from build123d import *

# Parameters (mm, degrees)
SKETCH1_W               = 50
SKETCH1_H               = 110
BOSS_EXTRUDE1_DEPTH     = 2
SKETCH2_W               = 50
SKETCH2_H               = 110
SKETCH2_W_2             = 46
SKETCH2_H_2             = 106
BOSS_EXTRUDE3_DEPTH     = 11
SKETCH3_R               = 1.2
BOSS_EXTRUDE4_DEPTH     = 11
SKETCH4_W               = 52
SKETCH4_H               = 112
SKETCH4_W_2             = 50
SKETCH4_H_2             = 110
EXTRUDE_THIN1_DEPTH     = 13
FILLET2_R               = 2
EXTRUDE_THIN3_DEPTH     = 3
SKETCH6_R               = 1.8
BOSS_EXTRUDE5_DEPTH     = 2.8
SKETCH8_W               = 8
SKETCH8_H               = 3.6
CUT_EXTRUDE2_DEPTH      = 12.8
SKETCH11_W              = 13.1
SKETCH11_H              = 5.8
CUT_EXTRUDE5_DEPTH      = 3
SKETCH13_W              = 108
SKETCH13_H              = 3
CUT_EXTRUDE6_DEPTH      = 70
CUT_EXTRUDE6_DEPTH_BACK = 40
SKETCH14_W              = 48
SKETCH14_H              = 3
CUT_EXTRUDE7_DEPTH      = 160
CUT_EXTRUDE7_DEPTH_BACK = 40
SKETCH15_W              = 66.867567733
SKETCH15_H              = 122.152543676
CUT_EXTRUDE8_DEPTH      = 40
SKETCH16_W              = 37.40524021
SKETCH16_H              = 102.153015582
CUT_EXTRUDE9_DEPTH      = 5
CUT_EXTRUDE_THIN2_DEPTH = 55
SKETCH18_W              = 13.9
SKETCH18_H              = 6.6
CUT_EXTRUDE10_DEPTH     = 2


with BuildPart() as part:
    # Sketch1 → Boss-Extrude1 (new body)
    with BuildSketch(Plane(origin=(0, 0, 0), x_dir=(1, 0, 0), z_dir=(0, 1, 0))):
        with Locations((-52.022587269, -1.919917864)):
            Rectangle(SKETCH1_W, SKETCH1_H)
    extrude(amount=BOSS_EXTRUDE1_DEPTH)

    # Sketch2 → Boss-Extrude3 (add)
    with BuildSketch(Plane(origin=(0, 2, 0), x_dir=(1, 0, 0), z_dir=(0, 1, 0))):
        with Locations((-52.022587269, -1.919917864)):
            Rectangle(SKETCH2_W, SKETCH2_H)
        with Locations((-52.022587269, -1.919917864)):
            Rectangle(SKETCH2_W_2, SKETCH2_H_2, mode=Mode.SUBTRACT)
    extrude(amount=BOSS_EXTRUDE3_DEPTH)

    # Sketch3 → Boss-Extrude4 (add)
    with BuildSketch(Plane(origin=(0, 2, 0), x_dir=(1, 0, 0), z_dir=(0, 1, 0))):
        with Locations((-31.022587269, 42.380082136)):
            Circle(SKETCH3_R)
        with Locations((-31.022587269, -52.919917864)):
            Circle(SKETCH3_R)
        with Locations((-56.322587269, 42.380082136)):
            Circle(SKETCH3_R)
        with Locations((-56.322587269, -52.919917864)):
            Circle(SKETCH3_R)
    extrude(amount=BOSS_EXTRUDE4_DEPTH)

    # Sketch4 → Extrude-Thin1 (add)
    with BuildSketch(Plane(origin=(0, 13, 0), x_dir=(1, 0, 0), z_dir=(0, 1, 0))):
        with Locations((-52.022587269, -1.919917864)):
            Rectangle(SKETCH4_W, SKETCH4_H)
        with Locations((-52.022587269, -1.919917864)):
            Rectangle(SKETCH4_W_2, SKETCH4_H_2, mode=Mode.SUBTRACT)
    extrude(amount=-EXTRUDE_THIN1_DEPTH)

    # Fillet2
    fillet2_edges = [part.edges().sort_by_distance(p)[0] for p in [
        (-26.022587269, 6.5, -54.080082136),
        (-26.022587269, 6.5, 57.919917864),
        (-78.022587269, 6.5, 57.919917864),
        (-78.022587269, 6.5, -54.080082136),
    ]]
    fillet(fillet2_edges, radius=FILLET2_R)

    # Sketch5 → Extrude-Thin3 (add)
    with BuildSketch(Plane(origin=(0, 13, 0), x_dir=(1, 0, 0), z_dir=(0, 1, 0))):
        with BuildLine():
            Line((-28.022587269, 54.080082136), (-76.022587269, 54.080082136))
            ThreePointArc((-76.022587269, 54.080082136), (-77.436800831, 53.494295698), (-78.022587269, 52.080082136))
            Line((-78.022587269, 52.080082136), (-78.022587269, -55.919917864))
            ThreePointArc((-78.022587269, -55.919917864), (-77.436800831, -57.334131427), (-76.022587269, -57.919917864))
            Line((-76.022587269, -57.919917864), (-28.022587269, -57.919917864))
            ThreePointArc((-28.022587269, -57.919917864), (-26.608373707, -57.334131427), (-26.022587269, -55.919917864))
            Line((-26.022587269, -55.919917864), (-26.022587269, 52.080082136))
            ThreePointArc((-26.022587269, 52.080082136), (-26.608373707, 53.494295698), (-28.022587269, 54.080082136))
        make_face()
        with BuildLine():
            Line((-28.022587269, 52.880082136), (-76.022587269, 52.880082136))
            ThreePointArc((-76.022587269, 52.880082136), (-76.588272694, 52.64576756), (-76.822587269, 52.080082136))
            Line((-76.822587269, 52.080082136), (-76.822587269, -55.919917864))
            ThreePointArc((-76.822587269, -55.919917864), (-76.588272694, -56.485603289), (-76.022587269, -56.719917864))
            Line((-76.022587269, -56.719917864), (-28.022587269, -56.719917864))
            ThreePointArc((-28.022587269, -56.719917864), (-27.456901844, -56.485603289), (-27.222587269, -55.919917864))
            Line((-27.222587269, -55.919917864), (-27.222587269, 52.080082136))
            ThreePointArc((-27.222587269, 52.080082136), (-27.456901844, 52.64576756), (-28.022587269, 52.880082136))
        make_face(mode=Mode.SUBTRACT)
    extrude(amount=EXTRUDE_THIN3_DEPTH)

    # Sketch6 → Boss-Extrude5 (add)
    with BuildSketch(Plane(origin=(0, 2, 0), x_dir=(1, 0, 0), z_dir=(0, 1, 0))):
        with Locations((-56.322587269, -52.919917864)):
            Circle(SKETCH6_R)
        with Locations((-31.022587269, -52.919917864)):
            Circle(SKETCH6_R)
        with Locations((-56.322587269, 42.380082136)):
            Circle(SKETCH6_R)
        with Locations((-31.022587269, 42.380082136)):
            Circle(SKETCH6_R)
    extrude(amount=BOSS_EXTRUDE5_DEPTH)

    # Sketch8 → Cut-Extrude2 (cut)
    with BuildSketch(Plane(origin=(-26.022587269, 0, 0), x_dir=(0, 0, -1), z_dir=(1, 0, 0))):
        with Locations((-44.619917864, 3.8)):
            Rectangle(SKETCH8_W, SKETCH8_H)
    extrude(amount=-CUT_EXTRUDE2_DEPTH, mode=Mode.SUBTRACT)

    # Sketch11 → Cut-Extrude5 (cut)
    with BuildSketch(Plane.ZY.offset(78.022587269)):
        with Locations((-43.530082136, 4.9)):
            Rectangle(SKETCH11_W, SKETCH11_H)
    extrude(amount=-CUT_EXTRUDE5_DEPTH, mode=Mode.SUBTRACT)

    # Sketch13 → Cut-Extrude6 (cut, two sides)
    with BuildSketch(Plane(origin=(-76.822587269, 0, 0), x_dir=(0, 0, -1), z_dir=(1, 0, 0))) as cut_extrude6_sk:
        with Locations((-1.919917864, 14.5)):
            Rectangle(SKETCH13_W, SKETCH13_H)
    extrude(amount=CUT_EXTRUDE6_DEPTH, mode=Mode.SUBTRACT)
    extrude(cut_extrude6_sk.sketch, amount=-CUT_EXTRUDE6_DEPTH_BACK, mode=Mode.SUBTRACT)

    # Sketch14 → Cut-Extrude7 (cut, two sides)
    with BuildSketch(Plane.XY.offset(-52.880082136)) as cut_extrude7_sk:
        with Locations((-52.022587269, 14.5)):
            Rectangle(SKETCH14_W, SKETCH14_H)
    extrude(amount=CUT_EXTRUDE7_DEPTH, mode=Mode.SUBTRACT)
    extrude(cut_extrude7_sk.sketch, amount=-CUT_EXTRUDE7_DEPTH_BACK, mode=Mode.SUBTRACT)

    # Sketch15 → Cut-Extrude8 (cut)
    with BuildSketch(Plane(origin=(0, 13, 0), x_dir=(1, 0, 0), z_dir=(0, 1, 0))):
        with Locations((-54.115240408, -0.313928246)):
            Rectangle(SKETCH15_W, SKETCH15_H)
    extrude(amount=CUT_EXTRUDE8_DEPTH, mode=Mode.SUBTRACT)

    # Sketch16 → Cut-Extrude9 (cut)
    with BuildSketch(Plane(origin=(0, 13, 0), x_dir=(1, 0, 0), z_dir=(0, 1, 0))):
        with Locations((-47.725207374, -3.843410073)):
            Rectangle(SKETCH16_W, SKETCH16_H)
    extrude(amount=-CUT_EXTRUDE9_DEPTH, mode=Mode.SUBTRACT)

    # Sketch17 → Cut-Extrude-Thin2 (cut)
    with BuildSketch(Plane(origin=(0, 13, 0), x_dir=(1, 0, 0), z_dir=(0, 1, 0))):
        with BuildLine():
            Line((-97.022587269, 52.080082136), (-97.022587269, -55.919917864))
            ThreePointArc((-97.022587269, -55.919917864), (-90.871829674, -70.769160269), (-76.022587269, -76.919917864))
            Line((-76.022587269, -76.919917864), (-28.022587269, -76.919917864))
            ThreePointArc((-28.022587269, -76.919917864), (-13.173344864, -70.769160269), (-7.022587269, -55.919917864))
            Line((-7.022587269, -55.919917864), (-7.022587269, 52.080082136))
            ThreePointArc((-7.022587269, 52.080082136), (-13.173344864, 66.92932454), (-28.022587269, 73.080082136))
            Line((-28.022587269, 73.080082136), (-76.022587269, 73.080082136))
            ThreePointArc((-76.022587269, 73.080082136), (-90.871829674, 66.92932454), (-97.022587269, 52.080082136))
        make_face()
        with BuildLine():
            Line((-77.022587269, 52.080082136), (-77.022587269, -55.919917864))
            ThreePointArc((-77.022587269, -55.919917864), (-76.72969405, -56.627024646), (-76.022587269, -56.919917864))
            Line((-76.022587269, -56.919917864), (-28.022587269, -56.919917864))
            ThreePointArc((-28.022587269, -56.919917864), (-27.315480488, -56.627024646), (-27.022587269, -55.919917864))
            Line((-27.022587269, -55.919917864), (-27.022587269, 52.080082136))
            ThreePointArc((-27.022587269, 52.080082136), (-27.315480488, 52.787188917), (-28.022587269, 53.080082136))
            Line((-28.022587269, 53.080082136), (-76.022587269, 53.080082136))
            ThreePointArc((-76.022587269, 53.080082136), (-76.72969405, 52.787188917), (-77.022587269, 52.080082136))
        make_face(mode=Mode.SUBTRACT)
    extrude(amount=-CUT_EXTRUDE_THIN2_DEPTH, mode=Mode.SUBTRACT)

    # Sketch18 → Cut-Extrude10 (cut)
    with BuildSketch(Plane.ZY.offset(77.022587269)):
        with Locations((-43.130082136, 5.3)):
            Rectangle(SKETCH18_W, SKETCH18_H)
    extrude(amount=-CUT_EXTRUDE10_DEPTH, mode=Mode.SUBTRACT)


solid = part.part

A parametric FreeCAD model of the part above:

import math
import FreeCAD as App
import Part
import Sketcher
Q = App.Units.Quantity


def edges_at(feature, points):
    """Names of the edges that pass closest to the given points."""
    edges = feature.Shape.Edges
    near = lambda p: min(range(len(edges)), key=lambda i: edges[i].distToShape(Part.Vertex(*p))[0])
    return sorted({f"Edge{near(p) + 1}" for p in points})

doc = App.newDocument("Part")
body = doc.addObject("PartDesign::Body", "Body")

sketch1 = body.newObject("Sketcher::SketchObject", "Sketch")
sketch1.AttachmentSupport = (doc.getObject("XZ_Plane"), [""])
sketch1.MapMode = "FlatFace"
sketch1.addGeometry([
    Part.LineSegment(App.Vector(-77.022587, -53.080082, 0), App.Vector(-77.022587, 56.919918, 0)),
    Part.LineSegment(App.Vector(-77.022587, 56.919918, 0), App.Vector(-27.022587, 56.919918, 0)),
    Part.LineSegment(App.Vector(-27.022587, 56.919918, 0), App.Vector(-27.022587, -53.080082, 0)),
    Part.LineSegment(App.Vector(-27.022587, -53.080082, 0), App.Vector(-77.022587, -53.080082, 0)),
], False)
sketch1.addConstraint([
    Sketcher.Constraint("Coincident", 0, 2, 1, 1),
    Sketcher.Constraint("Coincident", 1, 2, 2, 1),
    Sketcher.Constraint("Coincident", 2, 2, 3, 1),
    Sketcher.Constraint("Coincident", 3, 2, 0, 1),
    Sketcher.Constraint("Vertical", 0),
    Sketcher.Constraint("Horizontal", 1),
    Sketcher.Constraint("Vertical", 2),
    Sketcher.Constraint("Horizontal", 3),
    Sketcher.Constraint("DistanceX", 1, 1, 1, 2, Q("50 mm")),
    Sketcher.Constraint("DistanceY", 0, 1, 0, 2, Q("110 mm")),
    Sketcher.Constraint("DistanceX", 0, 2, -1, 1, Q("77.022587 mm")),
    Sketcher.Constraint("DistanceY", -1, 1, 0, 2, Q("56.919918 mm")),
])
pad1 = body.newObject("PartDesign::Pad", "Pad")
pad1.Profile = sketch1
pad1.Length = 2
pad1.Reversed = True

sketch2 = body.newObject("Sketcher::SketchObject", "Sketch001")
sketch2.AttachmentSupport = (doc.getObject("XZ_Plane"), [""])
sketch2.MapMode = "FlatFace"
sketch2.AttachmentOffset = App.Placement(App.Vector(0, 0, -2), App.Rotation())
sketch2.addGeometry([
    Part.LineSegment(App.Vector(-77.022587, -53.080082, 0), App.Vector(-77.022587, 56.919918, 0)),
    Part.LineSegment(App.Vector(-77.022587, 56.919918, 0), App.Vector(-27.022587, 56.919918, 0)),
    Part.LineSegment(App.Vector(-27.022587, 56.919918, 0), App.Vector(-27.022587, -53.080082, 0)),
    Part.LineSegment(App.Vector(-27.022587, -53.080082, 0), App.Vector(-77.022587, -53.080082, 0)),
    Part.LineSegment(App.Vector(-29.022587, 54.919918, 0), App.Vector(-75.022587, 54.919918, 0)),
    Part.LineSegment(App.Vector(-75.022587, 54.919918, 0), App.Vector(-75.022587, -51.080082, 0)),
    Part.LineSegment(App.Vector(-75.022587, -51.080082, 0), App.Vector(-29.022587, -51.080082, 0)),
    Part.LineSegment(App.Vector(-29.022587, -51.080082, 0), App.Vector(-29.022587, 54.919918, 0)),
], False)
sketch2.addConstraint([
    Sketcher.Constraint("Coincident", 0, 2, 1, 1),
    Sketcher.Constraint("Coincident", 1, 2, 2, 1),
    Sketcher.Constraint("Coincident", 2, 2, 3, 1),
    Sketcher.Constraint("Coincident", 3, 2, 0, 1),
    Sketcher.Constraint("Coincident", 4, 2, 5, 1),
    Sketcher.Constraint("Coincident", 5, 2, 6, 1),
    Sketcher.Constraint("Coincident", 6, 2, 7, 1),
    Sketcher.Constraint("Coincident", 7, 2, 4, 1),
    Sketcher.Constraint("Vertical", 0),
    Sketcher.Constraint("Horizontal", 1),
    Sketcher.Constraint("Vertical", 2),
    Sketcher.Constraint("Horizontal", 3),
    Sketcher.Constraint("Horizontal", 4),
    Sketcher.Constraint("Vertical", 5),
    Sketcher.Constraint("Horizontal", 6),
    Sketcher.Constraint("Vertical", 7),
    Sketcher.Constraint("DistanceX", 1, 1, 1, 2, Q("50 mm")),
    Sketcher.Constraint("DistanceX", 4, 2, 4, 1, Q("46 mm")),
    Sketcher.Constraint("DistanceY", 0, 1, 0, 2, Q("110 mm")),
    Sketcher.Constraint("DistanceY", 5, 2, 5, 1, Q("106 mm")),
    Sketcher.Constraint("DistanceX", 0, 2, 4, 2, Q("2 mm")),
    Sketcher.Constraint("DistanceY", 4, 2, 0, 2, Q("2 mm")),
    Sketcher.Constraint("DistanceX", 0, 2, -1, 1, Q("77.022587 mm")),
    Sketcher.Constraint("DistanceY", -1, 1, 0, 2, Q("56.919918 mm")),
])
pad2 = body.newObject("PartDesign::Pad", "Pad001")
pad2.Profile = sketch2
pad2.Length = 11
pad2.Reversed = True

sketch3 = body.newObject("Sketcher::SketchObject", "Sketch002")
sketch3.AttachmentSupport = (doc.getObject("XZ_Plane"), [""])
sketch3.MapMode = "FlatFace"
sketch3.AttachmentOffset = App.Placement(App.Vector(0, 0, -2), App.Rotation())
sketch3.addGeometry([
    Part.Circle(App.Vector(-31.022587, -42.380082, 0), App.Vector(0, 0, 1), 1.2),
    Part.Circle(App.Vector(-31.022587, 52.919918, 0), App.Vector(0, 0, 1), 1.2),
    Part.Circle(App.Vector(-56.322587, -42.380082, 0), App.Vector(0, 0, 1), 1.2),
    Part.Circle(App.Vector(-56.322587, 52.919918, 0), App.Vector(0, 0, 1), 1.2),
], False)
sketch3.addConstraint([
    Sketcher.Constraint("Equal", 0, 1),
    Sketcher.Constraint("Equal", 1, 2),
    Sketcher.Constraint("Equal", 2, 3),
    Sketcher.Constraint("Horizontal", 0, 3, 2, 3),
    Sketcher.Constraint("Horizontal", 1, 3, 3, 3),
    Sketcher.Constraint("Vertical", 0, 3, 1, 3),
    Sketcher.Constraint("Vertical", 2, 3, 3, 3),
    Sketcher.Constraint("Diameter", 0, Q("2.4 mm")),
    Sketcher.Constraint("DistanceY", 0, 3, 1, 3, Q("95.3 mm")),
    Sketcher.Constraint("DistanceX", 2, 3, 0, 3, Q("25.3 mm")),
    Sketcher.Constraint("DistanceX", 0, 3, -1, 1, Q("31.022587 mm")),
    Sketcher.Constraint("DistanceY", 0, 3, -1, 1, Q("42.380082 mm")),
])
pad3 = body.newObject("PartDesign::Pad", "Pad002")
pad3.Profile = sketch3
pad3.Length = 11
pad3.Reversed = True

sketch4 = body.newObject("Sketcher::SketchObject", "Sketch003")
sketch4.AttachmentSupport = (doc.getObject("XZ_Plane"), [""])
sketch4.MapMode = "FlatFace"
sketch4.AttachmentOffset = App.Placement(App.Vector(0, 0, -13), App.Rotation())
sketch4.addGeometry([
    Part.LineSegment(App.Vector(-78.022587, -54.080082, 0), App.Vector(-78.022587, 57.919918, 0)),
    Part.LineSegment(App.Vector(-78.022587, 57.919918, 0), App.Vector(-26.022587, 57.919918, 0)),
    Part.LineSegment(App.Vector(-26.022587, 57.919918, 0), App.Vector(-26.022587, -54.080082, 0)),
    Part.LineSegment(App.Vector(-26.022587, -54.080082, 0), App.Vector(-78.022587, -54.080082, 0)),
    Part.LineSegment(App.Vector(-27.022587, 56.919918, 0), App.Vector(-77.022587, 56.919918, 0)),
    Part.LineSegment(App.Vector(-77.022587, 56.919918, 0), App.Vector(-77.022587, -53.080082, 0)),
    Part.LineSegment(App.Vector(-77.022587, -53.080082, 0), App.Vector(-27.022587, -53.080082, 0)),
    Part.LineSegment(App.Vector(-27.022587, -53.080082, 0), App.Vector(-27.022587, 56.919918, 0)),
], False)
sketch4.addConstraint([
    Sketcher.Constraint("Coincident", 0, 2, 1, 1),
    Sketcher.Constraint("Coincident", 1, 2, 2, 1),
    Sketcher.Constraint("Coincident", 2, 2, 3, 1),
    Sketcher.Constraint("Coincident", 3, 2, 0, 1),
    Sketcher.Constraint("Coincident", 4, 2, 5, 1),
    Sketcher.Constraint("Coincident", 5, 2, 6, 1),
    Sketcher.Constraint("Coincident", 6, 2, 7, 1),
    Sketcher.Constraint("Coincident", 7, 2, 4, 1),
    Sketcher.Constraint("Vertical", 0),
    Sketcher.Constraint("Horizontal", 1),
    Sketcher.Constraint("Vertical", 2),
    Sketcher.Constraint("Horizontal", 3),
    Sketcher.Constraint("Horizontal", 4),
    Sketcher.Constraint("Vertical", 5),
    Sketcher.Constraint("Horizontal", 6),
    Sketcher.Constraint("Vertical", 7),
    Sketcher.Constraint("DistanceX", 1, 1, 1, 2, Q("52 mm")),
    Sketcher.Constraint("DistanceX", 4, 2, 4, 1, Q("50 mm")),
    Sketcher.Constraint("DistanceY", 0, 1, 0, 2, Q("112 mm")),
    Sketcher.Constraint("DistanceY", 5, 2, 5, 1, Q("110 mm")),
    Sketcher.Constraint("DistanceX", 0, 2, 4, 2, Q("1 mm")),
    Sketcher.Constraint("DistanceY", 4, 2, 0, 2, Q("1 mm")),
    Sketcher.Constraint("DistanceX", 0, 2, -1, 1, Q("78.022587 mm")),
    Sketcher.Constraint("DistanceY", -1, 1, 0, 2, Q("57.919918 mm")),
])
pad4 = body.newObject("PartDesign::Pad", "Pad003")
pad4.Profile = sketch4
pad4.Length = 13
doc.recompute()

fillet = body.newObject("PartDesign::Fillet", "Fillet")
fillet.Base = (pad4, edges_at(pad4, [
    (-26.023, 6.5, -54.08),
    (-26.023, 6.5, 57.92),
    (-78.023, 6.5, 57.92),
    (-78.023, 6.5, -54.08),
]))
fillet.Radius = 2

sketch5 = body.newObject("Sketcher::SketchObject", "Sketch004")
sketch5.AttachmentSupport = (doc.getObject("XZ_Plane"), [""])
sketch5.MapMode = "FlatFace"
sketch5.AttachmentOffset = App.Placement(App.Vector(0, 0, -13), App.Rotation())
sketch5.addGeometry([
    Part.LineSegment(App.Vector(-28.022587, -54.080082, 0), App.Vector(-76.022587, -54.080082, 0)),
    Part.ArcOfCircle(Part.Circle(App.Vector(-76.022587, -52.080082, 0), App.Vector(0, 0, 1), 2), math.radians(-180), math.radians(-90)),
    Part.LineSegment(App.Vector(-78.022587, -52.080082, 0), App.Vector(-78.022587, 55.919918, 0)),
    Part.ArcOfCircle(Part.Circle(App.Vector(-76.022587, 55.919918, 0), App.Vector(0, 0, 1), 2), math.radians(90), math.radians(180)),
    Part.LineSegment(App.Vector(-76.022587, 57.919918, 0), App.Vector(-28.022587, 57.919918, 0)),
    Part.ArcOfCircle(Part.Circle(App.Vector(-28.022587, 55.919918, 0), App.Vector(0, 0, 1), 2), math.radians(0), math.radians(90)),
    Part.LineSegment(App.Vector(-26.022587, 55.919918, 0), App.Vector(-26.022587, -52.080082, 0)),
    Part.ArcOfCircle(Part.Circle(App.Vector(-28.022587, -52.080082, 0), App.Vector(0, 0, 1), 2), math.radians(-90), math.radians(0)),
    Part.LineSegment(App.Vector(-76.022587, -52.880082, 0), App.Vector(-28.022587, -52.880082, 0)),
    Part.ArcOfCircle(Part.Circle(App.Vector(-28.022587, -52.080082, 0), App.Vector(0, 0, 1), 0.8), math.radians(-90), math.radians(0)),
    Part.LineSegment(App.Vector(-27.222587, -52.080082, 0), App.Vector(-27.222587, 55.919918, 0)),
    Part.ArcOfCircle(Part.Circle(App.Vector(-28.022587, 55.919918, 0), App.Vector(0, 0, 1), 0.8), math.radians(0), math.radians(90)),
    Part.LineSegment(App.Vector(-28.022587, 56.719918, 0), App.Vector(-76.022587, 56.719918, 0)),
    Part.ArcOfCircle(Part.Circle(App.Vector(-76.022587, 55.919918, 0), App.Vector(0, 0, 1), 0.8), math.radians(90), math.radians(180)),
    Part.LineSegment(App.Vector(-76.822587, 55.919918, 0), App.Vector(-76.822587, -52.080082, 0)),
    Part.ArcOfCircle(Part.Circle(App.Vector(-76.022587, -52.080082, 0), App.Vector(0, 0, 1), 0.8), math.radians(-180), math.radians(-90)),
], False)
sketch5.addConstraint([
    Sketcher.Constraint("Tangent", 0, 2, 1, 2),
    Sketcher.Constraint("Tangent", 1, 1, 2, 1),
    Sketcher.Constraint("Tangent", 2, 2, 3, 2),
    Sketcher.Constraint("Tangent", 3, 1, 4, 1),
    Sketcher.Constraint("Tangent", 4, 2, 5, 2),
    Sketcher.Constraint("Tangent", 5, 1, 6, 1),
    Sketcher.Constraint("Tangent", 6, 2, 7, 2),
    Sketcher.Constraint("Tangent", 7, 1, 0, 1),
    Sketcher.Constraint("Tangent", 8, 2, 9, 1),
    Sketcher.Constraint("Tangent", 9, 2, 10, 1),
    Sketcher.Constraint("Tangent", 10, 2, 11, 1),
    Sketcher.Constraint("Tangent", 11, 2, 12, 1),
    Sketcher.Constraint("Tangent", 12, 2, 13, 1),
    Sketcher.Constraint("Tangent", 13, 2, 14, 1),
    Sketcher.Constraint("Tangent", 14, 2, 15, 1),
    Sketcher.Constraint("Tangent", 15, 2, 8, 1),
    Sketcher.Constraint("Horizontal", 0),
    Sketcher.Constraint("Vertical", 2),
    Sketcher.Constraint("Horizontal", 4),
    Sketcher.Constraint("Vertical", 6),
    Sketcher.Constraint("Horizontal", 8),
    Sketcher.Constraint("Vertical", 10),
    Sketcher.Constraint("Horizontal", 12),
    Sketcher.Constraint("Vertical", 14),
    Sketcher.Constraint("Coincident", 9, 3, 7, 3),
    Sketcher.Constraint("Coincident", 11, 3, 5, 3),
    Sketcher.Constraint("Coincident", 13, 3, 3, 3),
    Sketcher.Constraint("Equal", 1, 3),
    Sketcher.Constraint("Equal", 3, 5),
    Sketcher.Constraint("Equal", 5, 7),
    Sketcher.Constraint("Equal", 13, 15),
    Sketcher.Constraint("Radius", 1, Q("2 mm")),
    Sketcher.Constraint("Radius", 9, Q("0.8 mm")),
    Sketcher.Constraint("DistanceX", 0, 2, 0, 1, Q("48 mm")),
    Sketcher.Constraint("DistanceY", 2, 1, 2, 2, Q("108 mm")),
    Sketcher.Constraint("DistanceX", 1, 3, -1, 1, Q("76.022587 mm")),
    Sketcher.Constraint("DistanceY", 1, 3, -1, 1, Q("52.080082 mm")),
])
pad5 = body.newObject("PartDesign::Pad", "Pad004")
pad5.Profile = sketch5
pad5.Length = 3
pad5.Reversed = True

sketch6 = body.newObject("Sketcher::SketchObject", "Sketch005")
sketch6.AttachmentSupport = (doc.getObject("XZ_Plane"), [""])
sketch6.MapMode = "FlatFace"
sketch6.AttachmentOffset = App.Placement(App.Vector(0, 0, -2), App.Rotation())
sketch6.addGeometry([
    Part.Circle(App.Vector(-56.322587, 52.919918, 0), App.Vector(0, 0, 1), 1.8),
    Part.Circle(App.Vector(-31.022587, 52.919918, 0), App.Vector(0, 0, 1), 1.8),
    Part.Circle(App.Vector(-56.322587, -42.380082, 0), App.Vector(0, 0, 1), 1.8),
    Part.Circle(App.Vector(-31.022587, -42.380082, 0), App.Vector(0, 0, 1), 1.8),
], False)
sketch6.addConstraint([
    Sketcher.Constraint("Equal", 0, 1),
    Sketcher.Constraint("Equal", 1, 2),
    Sketcher.Constraint("Equal", 2, 3),
    Sketcher.Constraint("Horizontal", 0, 3, 1, 3),
    Sketcher.Constraint("Horizontal", 2, 3, 3, 3),
    Sketcher.Constraint("Vertical", 0, 3, 2, 3),
    Sketcher.Constraint("Vertical", 1, 3, 3, 3),
    Sketcher.Constraint("Diameter", 0, Q("3.6 mm")),
    Sketcher.Constraint("DistanceX", 0, 3, 1, 3, Q("25.3 mm")),
    Sketcher.Constraint("DistanceY", 2, 3, 0, 3, Q("95.3 mm")),
    Sketcher.Constraint("DistanceX", 0, 3, -1, 1, Q("56.322587 mm")),
    Sketcher.Constraint("DistanceY", -1, 1, 0, 3, Q("52.919918 mm")),
])
pad6 = body.newObject("PartDesign::Pad", "Pad005")
pad6.Profile = sketch6
pad6.Length = 2.8
pad6.Reversed = True

sketch7 = body.newObject("Sketcher::SketchObject", "Sketch006")
sketch7.AttachmentSupport = (doc.getObject("YZ_Plane"), [""])
sketch7.MapMode = "FlatFace"
sketch7.AttachmentOffset = App.Placement(App.Vector(0, 0, -26.022587), App.Rotation())
sketch7.addGeometry([
    Part.LineSegment(App.Vector(5.6, 48.619918, 0), App.Vector(2, 48.619918, 0)),
    Part.LineSegment(App.Vector(2, 48.619918, 0), App.Vector(2, 40.619918, 0)),
    Part.LineSegment(App.Vector(2, 40.619918, 0), App.Vector(5.6, 40.619918, 0)),
    Part.LineSegment(App.Vector(5.6, 40.619918, 0), App.Vector(5.6, 48.619918, 0)),
], False)
sketch7.addConstraint([
    Sketcher.Constraint("Coincident", 0, 2, 1, 1),
    Sketcher.Constraint("Coincident", 1, 2, 2, 1),
    Sketcher.Constraint("Coincident", 2, 2, 3, 1),
    Sketcher.Constraint("Coincident", 3, 2, 0, 1),
    Sketcher.Constraint("Horizontal", 0),
    Sketcher.Constraint("Vertical", 1),
    Sketcher.Constraint("Horizontal", 2),
    Sketcher.Constraint("Vertical", 3),
    Sketcher.Constraint("DistanceY", 1, 2, 1, 1, Q("8 mm")),
    Sketcher.Constraint("DistanceX", 0, 2, 0, 1, Q("3.6 mm")),
    Sketcher.Constraint("DistanceX", -1, 1, 0, 2, Q("2 mm")),
    Sketcher.Constraint("DistanceY", -1, 1, 0, 2, Q("48.619918 mm")),
])
pocket1 = body.newObject("PartDesign::Pocket", "Pocket")
pocket1.Profile = sketch7
pocket1.Length = 12.8

sketch8 = body.newObject("Sketcher::SketchObject", "Sketch007")
sketch8.AttachmentSupport = (doc.getObject("YZ_Plane"), [""])
sketch8.MapMode = "FlatFace"
sketch8.AttachmentOffset = App.Placement(App.Vector(0, 0, -78.022587), App.Rotation())
sketch8.addGeometry([
    Part.LineSegment(App.Vector(7.8, -50.080082, 0), App.Vector(2, -50.080082, 0)),
    Part.LineSegment(App.Vector(2, -50.080082, 0), App.Vector(2, -36.980082, 0)),
    Part.LineSegment(App.Vector(2, -36.980082, 0), App.Vector(7.8, -36.980082, 0)),
    Part.LineSegment(App.Vector(7.8, -36.980082, 0), App.Vector(7.8, -50.080082, 0)),
], False)
sketch8.addConstraint([
    Sketcher.Constraint("Coincident", 0, 2, 1, 1),
    Sketcher.Constraint("Coincident", 1, 2, 2, 1),
    Sketcher.Constraint("Coincident", 2, 2, 3, 1),
    Sketcher.Constraint("Coincident", 3, 2, 0, 1),
    Sketcher.Constraint("Horizontal", 0),
    Sketcher.Constraint("Vertical", 1),
    Sketcher.Constraint("Horizontal", 2),
    Sketcher.Constraint("Vertical", 3),
    Sketcher.Constraint("DistanceX", 0, 2, 0, 1, Q("5.8 mm")),
    Sketcher.Constraint("DistanceY", 1, 1, 1, 2, Q("13.1 mm")),
    Sketcher.Constraint("DistanceX", -1, 1, 0, 2, Q("2 mm")),
    Sketcher.Constraint("DistanceY", 0, 2, -1, 1, Q("50.080082 mm")),
])
pocket2 = body.newObject("PartDesign::Pocket", "Pocket001")
pocket2.Profile = sketch8
pocket2.Length = 3
pocket2.Reversed = True

sketch9 = body.newObject("Sketcher::SketchObject", "Sketch008")
sketch9.AttachmentSupport = (doc.getObject("YZ_Plane"), [""])
sketch9.MapMode = "FlatFace"
sketch9.AttachmentOffset = App.Placement(App.Vector(0, 0, -76.822587), App.Rotation())
sketch9.addGeometry([
    Part.LineSegment(App.Vector(16, 55.919918, 0), App.Vector(13, 55.919918, 0)),
    Part.LineSegment(App.Vector(13, 55.919918, 0), App.Vector(13, -52.080082, 0)),
    Part.LineSegment(App.Vector(13, -52.080082, 0), App.Vector(16, -52.080082, 0)),
    Part.LineSegment(App.Vector(16, -52.080082, 0), App.Vector(16, 55.919918, 0)),
], False)
sketch9.addConstraint([
    Sketcher.Constraint("Coincident", 0, 2, 1, 1),
    Sketcher.Constraint("Coincident", 1, 2, 2, 1),
    Sketcher.Constraint("Coincident", 2, 2, 3, 1),
    Sketcher.Constraint("Coincident", 3, 2, 0, 1),
    Sketcher.Constraint("Horizontal", 0),
    Sketcher.Constraint("Vertical", 1),
    Sketcher.Constraint("Horizontal", 2),
    Sketcher.Constraint("Vertical", 3),
    Sketcher.Constraint("DistanceX", 0, 2, 0, 1, Q("3 mm")),
    Sketcher.Constraint("DistanceY", 1, 2, 1, 1, Q("108 mm")),
    Sketcher.Constraint("DistanceX", -1, 1, 0, 2, Q("13 mm")),
    Sketcher.Constraint("DistanceY", -1, 1, 0, 2, Q("55.919918 mm")),
])
pocket3 = body.newObject("PartDesign::Pocket", "Pocket002")
pocket3.Profile = sketch9
pocket3.Type = "ThroughAll"
pocket3.Midplane = True

sketch10 = body.newObject("Sketcher::SketchObject", "Sketch009")
sketch10.AttachmentSupport = (doc.getObject("XY_Plane"), [""])
sketch10.MapMode = "FlatFace"
sketch10.AttachmentOffset = App.Placement(App.Vector(0, 0, -52.880082), App.Rotation())
sketch10.addGeometry([
    Part.LineSegment(App.Vector(-76.022587, 16, 0), App.Vector(-76.022587, 13, 0)),
    Part.LineSegment(App.Vector(-76.022587, 13, 0), App.Vector(-28.022587, 13, 0)),
    Part.LineSegment(App.Vector(-28.022587, 13, 0), App.Vector(-28.022587, 16, 0)),
    Part.LineSegment(App.Vector(-28.022587, 16, 0), App.Vector(-76.022587, 16, 0)),
], False)
sketch10.addConstraint([
    Sketcher.Constraint("Coincident", 0, 2, 1, 1),
    Sketcher.Constraint("Coincident", 1, 2, 2, 1),
    Sketcher.Constraint("Coincident", 2, 2, 3, 1),
    Sketcher.Constraint("Coincident", 3, 2, 0, 1),
    Sketcher.Constraint("Vertical", 0),
    Sketcher.Constraint("Horizontal", 1),
    Sketcher.Constraint("Vertical", 2),
    Sketcher.Constraint("Horizontal", 3),
    Sketcher.Constraint("DistanceX", 1, 1, 1, 2, Q("48 mm")),
    Sketcher.Constraint("DistanceY", 0, 2, 0, 1, Q("3 mm")),
    Sketcher.Constraint("DistanceY", -1, 1, 0, 2, Q("13 mm")),
    Sketcher.Constraint("DistanceX", 0, 2, -1, 1, Q("76.022587 mm")),
])
pocket4 = body.newObject("PartDesign::Pocket", "Pocket003")
pocket4.Profile = sketch10
pocket4.Type = "ThroughAll"
pocket4.Midplane = True

sketch11 = body.newObject("Sketcher::SketchObject", "Sketch010")
sketch11.AttachmentSupport = (doc.getObject("XZ_Plane"), [""])
sketch11.MapMode = "FlatFace"
sketch11.AttachmentOffset = App.Placement(App.Vector(0, 0, -13), App.Rotation())
sketch11.addGeometry([
    Part.LineSegment(App.Vector(-87.549024, -60.762344, 0), App.Vector(-87.549024, 61.3902, 0)),
    Part.LineSegment(App.Vector(-87.549024, 61.3902, 0), App.Vector(-20.681457, 61.3902, 0)),
    Part.LineSegment(App.Vector(-20.681457, 61.3902, 0), App.Vector(-20.681457, -60.762344, 0)),
    Part.LineSegment(App.Vector(-20.681457, -60.762344, 0), App.Vector(-87.549024, -60.762344, 0)),
], False)
sketch11.addConstraint([
    Sketcher.Constraint("Coincident", 0, 2, 1, 1),
    Sketcher.Constraint("Coincident", 1, 2, 2, 1),
    Sketcher.Constraint("Coincident", 2, 2, 3, 1),
    Sketcher.Constraint("Coincident", 3, 2, 0, 1),
    Sketcher.Constraint("Vertical", 0),
    Sketcher.Constraint("Horizontal", 1),
    Sketcher.Constraint("Vertical", 2),
    Sketcher.Constraint("Horizontal", 3),
    Sketcher.Constraint("DistanceY", -1, 1, 0, 2, Q("61.3902 mm")),
    Sketcher.Constraint("DistanceX", 1, 1, 1, 2, Q("66.867568 mm")),
    Sketcher.Constraint("DistanceY", 0, 1, 0, 2, Q("122.152544 mm")),
    Sketcher.Constraint("DistanceX", 0, 2, -1, 1, Q("87.549024 mm")),
])
pocket5 = body.newObject("PartDesign::Pocket", "Pocket004")
pocket5.Profile = sketch11
pocket5.Length = 40

sketch12 = body.newObject("Sketcher::SketchObject", "Sketch011")
sketch12.AttachmentSupport = (doc.getObject("XZ_Plane"), [""])
sketch12.MapMode = "FlatFace"
sketch12.AttachmentOffset = App.Placement(App.Vector(0, 0, -13), App.Rotation())
sketch12.addGeometry([
    Part.LineSegment(App.Vector(-66.427827, -47.233098, 0), App.Vector(-66.427827, 54.919918, 0)),
    Part.LineSegment(App.Vector(-66.427827, 54.919918, 0), App.Vector(-29.022587, 54.919918, 0)),
    Part.LineSegment(App.Vector(-29.022587, 54.919918, 0), App.Vector(-29.022587, -47.233098, 0)),
    Part.LineSegment(App.Vector(-29.022587, -47.233098, 0), App.Vector(-66.427827, -47.233098, 0)),
], False)
sketch12.addConstraint([
    Sketcher.Constraint("Coincident", 0, 2, 1, 1),
    Sketcher.Constraint("Coincident", 1, 2, 2, 1),
    Sketcher.Constraint("Coincident", 2, 2, 3, 1),
    Sketcher.Constraint("Coincident", 3, 2, 0, 1),
    Sketcher.Constraint("Vertical", 0),
    Sketcher.Constraint("Horizontal", 1),
    Sketcher.Constraint("Vertical", 2),
    Sketcher.Constraint("Horizontal", 3),
    Sketcher.Constraint("DistanceX", 1, 1, 1, 2, Q("37.40524 mm")),
    Sketcher.Constraint("DistanceY", 0, 1, 0, 2, Q("102.153016 mm")),
    Sketcher.Constraint("DistanceX", 0, 2, -1, 1, Q("66.427827 mm")),
    Sketcher.Constraint("DistanceY", -1, 1, 0, 2, Q("54.919918 mm")),
])
pocket6 = body.newObject("PartDesign::Pocket", "Pocket005")
pocket6.Profile = sketch12
pocket6.Length = 5
pocket6.Reversed = True

sketch13 = body.newObject("Sketcher::SketchObject", "Sketch012")
sketch13.AttachmentSupport = (doc.getObject("XZ_Plane"), [""])
sketch13.MapMode = "FlatFace"
sketch13.AttachmentOffset = App.Placement(App.Vector(0, 0, -13), App.Rotation())
sketch13.addGeometry([
    Part.LineSegment(App.Vector(-97.022587, -52.080082, 0), App.Vector(-97.022587, 55.919918, 0)),
    Part.ArcOfCircle(Part.Circle(App.Vector(-76.022587, 55.919918, 0), App.Vector(0, 0, 1), 21), math.radians(90), math.radians(180)),
    Part.LineSegment(App.Vector(-76.022587, 76.919918, 0), App.Vector(-28.022587, 76.919918, 0)),
    Part.ArcOfCircle(Part.Circle(App.Vector(-28.022587, 55.919918, 0), App.Vector(0, 0, 1), 21), math.radians(0), math.radians(90)),
    Part.LineSegment(App.Vector(-7.022587, 55.919918, 0), App.Vector(-7.022587, -52.080082, 0)),
    Part.ArcOfCircle(Part.Circle(App.Vector(-28.022587, -52.080082, 0), App.Vector(0, 0, 1), 21), math.radians(-90), math.radians(0)),
    Part.LineSegment(App.Vector(-28.022587, -73.080082, 0), App.Vector(-76.022587, -73.080082, 0)),
    Part.ArcOfCircle(Part.Circle(App.Vector(-76.022587, -52.080082, 0), App.Vector(0, 0, 1), 21), math.radians(-180), math.radians(-90)),
    Part.LineSegment(App.Vector(-77.022587, 55.919918, 0), App.Vector(-77.022587, -52.080082, 0)),
    Part.ArcOfCircle(Part.Circle(App.Vector(-76.022587, -52.080082, 0), App.Vector(0, 0, 1), 1), math.radians(-180), math.radians(-90)),
    Part.LineSegment(App.Vector(-76.022587, -53.080082, 0), App.Vector(-28.022587, -53.080082, 0)),
    Part.ArcOfCircle(Part.Circle(App.Vector(-28.022587, -52.080082, 0), App.Vector(0, 0, 1), 1), math.radians(-90), math.radians(0)),
    Part.LineSegment(App.Vector(-27.022587, -52.080082, 0), App.Vector(-27.022587, 55.919918, 0)),
    Part.ArcOfCircle(Part.Circle(App.Vector(-28.022587, 55.919918, 0), App.Vector(0, 0, 1), 1), math.radians(0), math.radians(90)),
    Part.LineSegment(App.Vector(-28.022587, 56.919918, 0), App.Vector(-76.022587, 56.919918, 0)),
    Part.ArcOfCircle(Part.Circle(App.Vector(-76.022587, 55.919918, 0), App.Vector(0, 0, 1), 1), math.radians(90), math.radians(180)),
], False)
sketch13.addConstraint([
    Sketcher.Constraint("Tangent", 0, 2, 1, 2),
    Sketcher.Constraint("Tangent", 1, 1, 2, 1),
    Sketcher.Constraint("Tangent", 2, 2, 3, 2),
    Sketcher.Constraint("Tangent", 3, 1, 4, 1),
    Sketcher.Constraint("Tangent", 4, 2, 5, 2),
    Sketcher.Constraint("Tangent", 5, 1, 6, 1),
    Sketcher.Constraint("Tangent", 6, 2, 7, 2),
    Sketcher.Constraint("Tangent", 7, 1, 0, 1),
    Sketcher.Constraint("Tangent", 8, 2, 9, 1),
    Sketcher.Constraint("Tangent", 9, 2, 10, 1),
    Sketcher.Constraint("Tangent", 10, 2, 11, 1),
    Sketcher.Constraint("Tangent", 11, 2, 12, 1),
    Sketcher.Constraint("Tangent", 12, 2, 13, 1),
    Sketcher.Constraint("Tangent", 13, 2, 14, 1),
    Sketcher.Constraint("Tangent", 14, 2, 15, 1),
    Sketcher.Constraint("Tangent", 15, 2, 8, 1),
    Sketcher.Constraint("Vertical", 0),
    Sketcher.Constraint("Horizontal", 2),
    Sketcher.Constraint("Vertical", 4),
    Sketcher.Constraint("Horizontal", 6),
    Sketcher.Constraint("Vertical", 8),
    Sketcher.Constraint("Horizontal", 10),
    Sketcher.Constraint("Vertical", 12),
    Sketcher.Constraint("Horizontal", 14),
    Sketcher.Constraint("Coincident", 9, 3, 7, 3),
    Sketcher.Constraint("Coincident", 11, 3, 5, 3),
    Sketcher.Constraint("Coincident", 13, 3, 3, 3),
    Sketcher.Constraint("Equal", 1, 3),
    Sketcher.Constraint("Equal", 3, 5),
    Sketcher.Constraint("Equal", 5, 7),
    Sketcher.Constraint("Equal", 13, 15),
    Sketcher.Constraint("Radius", 1, Q("21 mm")),
    Sketcher.Constraint("Radius", 9, Q("1 mm")),
    Sketcher.Constraint("DistanceX", 2, 1, 2, 2, Q("48 mm")),
    Sketcher.Constraint("DistanceY", 0, 1, 0, 2, Q("108 mm")),
    Sketcher.Constraint("DistanceX", 1, 3, -1, 1, Q("76.022587 mm")),
    Sketcher.Constraint("DistanceY", -1, 1, 1, 3, Q("55.919918 mm")),
])
pocket7 = body.newObject("PartDesign::Pocket", "Pocket006")
pocket7.Profile = sketch13
pocket7.Length = 55
pocket7.Reversed = True

sketch14 = body.newObject("Sketcher::SketchObject", "Sketch013")
sketch14.AttachmentSupport = (doc.getObject("YZ_Plane"), [""])
sketch14.MapMode = "FlatFace"
sketch14.AttachmentOffset = App.Placement(App.Vector(0, 0, -77.022587), App.Rotation())
sketch14.addGeometry([
    Part.LineSegment(App.Vector(8.6, -50.080082, 0), App.Vector(2, -50.080082, 0)),
    Part.LineSegment(App.Vector(2, -50.080082, 0), App.Vector(2, -36.180082, 0)),
    Part.LineSegment(App.Vector(2, -36.180082, 0), App.Vector(8.6, -36.180082, 0)),
    Part.LineSegment(App.Vector(8.6, -36.180082, 0), App.Vector(8.6, -50.080082, 0)),
], False)
sketch14.addConstraint([
    Sketcher.Constraint("Coincident", 0, 2, 1, 1),
    Sketcher.Constraint("Coincident", 1, 2, 2, 1),
    Sketcher.Constraint("Coincident", 2, 2, 3, 1),
    Sketcher.Constraint("Coincident", 3, 2, 0, 1),
    Sketcher.Constraint("Horizontal", 0),
    Sketcher.Constraint("Vertical", 1),
    Sketcher.Constraint("Horizontal", 2),
    Sketcher.Constraint("Vertical", 3),
    Sketcher.Constraint("DistanceX", 0, 2, 0, 1, Q("6.6 mm")),
    Sketcher.Constraint("DistanceY", 1, 1, 1, 2, Q("13.9 mm")),
    Sketcher.Constraint("DistanceX", -1, 1, 0, 2, Q("2 mm")),
    Sketcher.Constraint("DistanceY", 0, 2, -1, 1, Q("50.080082 mm")),
])
pocket8 = body.newObject("PartDesign::Pocket", "Pocket007")
pocket8.Profile = sketch14
pocket8.Length = 2
pocket8.Reversed = True

doc.recompute()
